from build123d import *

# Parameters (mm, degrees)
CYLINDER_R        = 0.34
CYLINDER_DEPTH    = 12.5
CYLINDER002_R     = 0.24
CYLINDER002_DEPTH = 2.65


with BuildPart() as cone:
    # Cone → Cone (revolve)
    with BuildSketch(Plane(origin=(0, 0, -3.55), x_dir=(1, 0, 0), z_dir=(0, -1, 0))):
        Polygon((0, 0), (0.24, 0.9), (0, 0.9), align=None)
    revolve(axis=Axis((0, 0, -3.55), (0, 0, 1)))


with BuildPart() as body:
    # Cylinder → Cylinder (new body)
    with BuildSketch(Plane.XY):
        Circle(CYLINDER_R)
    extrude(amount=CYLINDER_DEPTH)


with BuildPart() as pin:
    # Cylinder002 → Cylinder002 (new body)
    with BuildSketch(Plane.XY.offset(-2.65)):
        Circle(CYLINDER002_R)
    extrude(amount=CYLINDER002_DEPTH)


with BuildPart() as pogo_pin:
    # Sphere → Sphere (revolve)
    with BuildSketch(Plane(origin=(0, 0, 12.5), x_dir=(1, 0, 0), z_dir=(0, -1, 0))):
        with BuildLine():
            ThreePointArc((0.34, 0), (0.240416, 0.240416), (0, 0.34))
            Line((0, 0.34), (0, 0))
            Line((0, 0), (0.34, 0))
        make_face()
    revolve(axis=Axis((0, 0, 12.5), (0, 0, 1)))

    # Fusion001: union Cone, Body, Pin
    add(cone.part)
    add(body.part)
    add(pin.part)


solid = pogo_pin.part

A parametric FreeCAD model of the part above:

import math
import FreeCAD as App
import Part
import Sketcher
Q = App.Units.Quantity


def add_polygon(sketch, points):
    """Adds a closed chain of lines whose ends are joined by coincident constraints."""
    first, n = sketch.GeometryCount, len(points)
    for a, b in zip(points, points[1:] + points[:1]):
        sketch.addGeometry(Part.LineSegment(App.Vector(*a, 0), App.Vector(*b, 0)), False)
    for i in range(n):
        sketch.addConstraint(Sketcher.Constraint("Coincident", first + i, 2, first + (i + 1) % n, 1))

doc = App.newDocument("Part")
body = doc.addObject("PartDesign::Body", "Body")

# Sketch on XZ plane
sketch1 = body.newObject("Sketcher::SketchObject", "Sketch")
sketch1.AttachmentSupport = (doc.getObject("XZ_Plane"), [""])
sketch1.MapMode = "FlatFace"
add_polygon(sketch1, [(0, -3.55), (0.24, -2.65), (0, -2.65)])  # lines 0-2
sketch1.addConstraint([
    Sketcher.Constraint("Horizontal", 1),
    Sketcher.Constraint("Vertical", 2),
    Sketcher.Constraint("PointOnObject", 1, 2, -2),
    Sketcher.Constraint("DistanceY", 2, 2, 2, 1, Q("0.9 mm")),
    Sketcher.Constraint("DistanceX", 1, 2, 1, 1, Q("0.24 mm")),
    Sketcher.Constraint("DistanceY", 0, 2, -1, 1, Q("2.65 mm")),
])
revolution = body.newObject("PartDesign::Revolution", "Revolution")
revolution.Profile = sketch1
revolution.ReferenceAxis = (sketch1, ["V_Axis"])
revolution.Angle = 360
body2 = doc.addObject("PartDesign::Body", "Body001")

# Sketch on XY plane
sketch2 = body2.newObject("Sketcher::SketchObject", "Sketch001")
sketch2.AttachmentSupport = (doc.getObject("XY_Plane001"), [""])
sketch2.MapMode = "FlatFace"
sketch2.addGeometry(Part.Circle(App.Vector(0, 0, 0), App.Vector(0, 0, 1), 0.34), False)
sketch2.addConstraint([
    Sketcher.Constraint("Coincident", 0, 3, -1, 1),
    Sketcher.Constraint("Diameter", 0, Q("0.68 mm")),
])
pad1 = body2.newObject("PartDesign::Pad", "Pad")
pad1.Profile = sketch2
pad1.Length = 12.5
body3 = doc.addObject("PartDesign::Body", "Body002")

# Sketch on XY plane
sketch3 = body3.newObject("Sketcher::SketchObject", "Sketch002")
sketch3.AttachmentSupport = (doc.getObject("XY_Plane002"), [""])
sketch3.MapMode = "FlatFace"
sketch3.AttachmentOffset = App.Placement(App.Vector(0, 0, -2.65), App.Rotation())
sketch3.addGeometry(Part.Circle(App.Vector(0, 0, 0), App.Vector(0, 0, 1), 0.24), False)
sketch3.addConstraint([
    Sketcher.Constraint("Coincident", 0, 3, -1, 1),
    Sketcher.Constraint("Diameter", 0, Q("0.48 mm")),
])
pad2 = body3.newObject("PartDesign::Pad", "Pad001")
pad2.Profile = sketch3
pad2.Length = 2.65
body4 = doc.addObject("PartDesign::Body", "Body003")
body4.AllowCompound = True

# Sketch on XZ plane
sketch4 = body4.newObject("Sketcher::SketchObject", "Sketch003")
sketch4.AttachmentSupport = (doc.getObject("XZ_Plane003"), [""])
sketch4.MapMode = "FlatFace"
sketch4.addGeometry([
    Part.ArcOfCircle(Part.Circle(App.Vector(-0.000001, 12.499999, 0), App.Vector(0, 0, 1), 0.340001), math.radians(0.000176), math.radians(89.999824)),
    Part.LineSegment(App.Vector(0, 12.84, 0), App.Vector(0, 12.5, 0)),
    Part.LineSegment(App.Vector(0, 12.5, 0), App.Vector(0.34, 12.5, 0)),
], False)
sketch4.addConstraint([
    Sketcher.Constraint("Coincident", 0, 2, 1, 1),
    Sketcher.Constraint("Coincident", 1, 2, 2, 1),
    Sketcher.Constraint("Coincident", 2, 2, 0, 1),
    Sketcher.Constraint("Vertical", 1),
    Sketcher.Constraint("Horizontal", 2),
    Sketcher.Constraint("Coincident", 1, 2, 0, 3),
    Sketcher.Constraint("PointOnObject", 0, 3, -2),
    Sketcher.Constraint("Radius", 0, Q("0.340001 mm")),
    Sketcher.Constraint("DistanceY", -1, 1, 0, 3, Q("12.499999 mm")),
])
revolution2 = body4.newObject("PartDesign::Revolution", "Revolution001")
revolution2.Profile = sketch4
revolution2.ReferenceAxis = (sketch4, ["V_Axis"])
revolution2.Angle = 360
doc.recompute()

boolean = body4.newObject("PartDesign::Boolean", "Boolean")
boolean.Type = "Fuse"
boolean.addObjects([body])
doc.recompute()

boolean2 = body4.newObject("PartDesign::Boolean", "Boolean001")
boolean2.Type = "Fuse"
boolean2.addObjects([body2])
doc.recompute()

boolean3 = body4.newObject("PartDesign::Boolean", "Boolean002")
boolean3.Type = "Fuse"
boolean3.addObjects([body3])

doc.recompute()
